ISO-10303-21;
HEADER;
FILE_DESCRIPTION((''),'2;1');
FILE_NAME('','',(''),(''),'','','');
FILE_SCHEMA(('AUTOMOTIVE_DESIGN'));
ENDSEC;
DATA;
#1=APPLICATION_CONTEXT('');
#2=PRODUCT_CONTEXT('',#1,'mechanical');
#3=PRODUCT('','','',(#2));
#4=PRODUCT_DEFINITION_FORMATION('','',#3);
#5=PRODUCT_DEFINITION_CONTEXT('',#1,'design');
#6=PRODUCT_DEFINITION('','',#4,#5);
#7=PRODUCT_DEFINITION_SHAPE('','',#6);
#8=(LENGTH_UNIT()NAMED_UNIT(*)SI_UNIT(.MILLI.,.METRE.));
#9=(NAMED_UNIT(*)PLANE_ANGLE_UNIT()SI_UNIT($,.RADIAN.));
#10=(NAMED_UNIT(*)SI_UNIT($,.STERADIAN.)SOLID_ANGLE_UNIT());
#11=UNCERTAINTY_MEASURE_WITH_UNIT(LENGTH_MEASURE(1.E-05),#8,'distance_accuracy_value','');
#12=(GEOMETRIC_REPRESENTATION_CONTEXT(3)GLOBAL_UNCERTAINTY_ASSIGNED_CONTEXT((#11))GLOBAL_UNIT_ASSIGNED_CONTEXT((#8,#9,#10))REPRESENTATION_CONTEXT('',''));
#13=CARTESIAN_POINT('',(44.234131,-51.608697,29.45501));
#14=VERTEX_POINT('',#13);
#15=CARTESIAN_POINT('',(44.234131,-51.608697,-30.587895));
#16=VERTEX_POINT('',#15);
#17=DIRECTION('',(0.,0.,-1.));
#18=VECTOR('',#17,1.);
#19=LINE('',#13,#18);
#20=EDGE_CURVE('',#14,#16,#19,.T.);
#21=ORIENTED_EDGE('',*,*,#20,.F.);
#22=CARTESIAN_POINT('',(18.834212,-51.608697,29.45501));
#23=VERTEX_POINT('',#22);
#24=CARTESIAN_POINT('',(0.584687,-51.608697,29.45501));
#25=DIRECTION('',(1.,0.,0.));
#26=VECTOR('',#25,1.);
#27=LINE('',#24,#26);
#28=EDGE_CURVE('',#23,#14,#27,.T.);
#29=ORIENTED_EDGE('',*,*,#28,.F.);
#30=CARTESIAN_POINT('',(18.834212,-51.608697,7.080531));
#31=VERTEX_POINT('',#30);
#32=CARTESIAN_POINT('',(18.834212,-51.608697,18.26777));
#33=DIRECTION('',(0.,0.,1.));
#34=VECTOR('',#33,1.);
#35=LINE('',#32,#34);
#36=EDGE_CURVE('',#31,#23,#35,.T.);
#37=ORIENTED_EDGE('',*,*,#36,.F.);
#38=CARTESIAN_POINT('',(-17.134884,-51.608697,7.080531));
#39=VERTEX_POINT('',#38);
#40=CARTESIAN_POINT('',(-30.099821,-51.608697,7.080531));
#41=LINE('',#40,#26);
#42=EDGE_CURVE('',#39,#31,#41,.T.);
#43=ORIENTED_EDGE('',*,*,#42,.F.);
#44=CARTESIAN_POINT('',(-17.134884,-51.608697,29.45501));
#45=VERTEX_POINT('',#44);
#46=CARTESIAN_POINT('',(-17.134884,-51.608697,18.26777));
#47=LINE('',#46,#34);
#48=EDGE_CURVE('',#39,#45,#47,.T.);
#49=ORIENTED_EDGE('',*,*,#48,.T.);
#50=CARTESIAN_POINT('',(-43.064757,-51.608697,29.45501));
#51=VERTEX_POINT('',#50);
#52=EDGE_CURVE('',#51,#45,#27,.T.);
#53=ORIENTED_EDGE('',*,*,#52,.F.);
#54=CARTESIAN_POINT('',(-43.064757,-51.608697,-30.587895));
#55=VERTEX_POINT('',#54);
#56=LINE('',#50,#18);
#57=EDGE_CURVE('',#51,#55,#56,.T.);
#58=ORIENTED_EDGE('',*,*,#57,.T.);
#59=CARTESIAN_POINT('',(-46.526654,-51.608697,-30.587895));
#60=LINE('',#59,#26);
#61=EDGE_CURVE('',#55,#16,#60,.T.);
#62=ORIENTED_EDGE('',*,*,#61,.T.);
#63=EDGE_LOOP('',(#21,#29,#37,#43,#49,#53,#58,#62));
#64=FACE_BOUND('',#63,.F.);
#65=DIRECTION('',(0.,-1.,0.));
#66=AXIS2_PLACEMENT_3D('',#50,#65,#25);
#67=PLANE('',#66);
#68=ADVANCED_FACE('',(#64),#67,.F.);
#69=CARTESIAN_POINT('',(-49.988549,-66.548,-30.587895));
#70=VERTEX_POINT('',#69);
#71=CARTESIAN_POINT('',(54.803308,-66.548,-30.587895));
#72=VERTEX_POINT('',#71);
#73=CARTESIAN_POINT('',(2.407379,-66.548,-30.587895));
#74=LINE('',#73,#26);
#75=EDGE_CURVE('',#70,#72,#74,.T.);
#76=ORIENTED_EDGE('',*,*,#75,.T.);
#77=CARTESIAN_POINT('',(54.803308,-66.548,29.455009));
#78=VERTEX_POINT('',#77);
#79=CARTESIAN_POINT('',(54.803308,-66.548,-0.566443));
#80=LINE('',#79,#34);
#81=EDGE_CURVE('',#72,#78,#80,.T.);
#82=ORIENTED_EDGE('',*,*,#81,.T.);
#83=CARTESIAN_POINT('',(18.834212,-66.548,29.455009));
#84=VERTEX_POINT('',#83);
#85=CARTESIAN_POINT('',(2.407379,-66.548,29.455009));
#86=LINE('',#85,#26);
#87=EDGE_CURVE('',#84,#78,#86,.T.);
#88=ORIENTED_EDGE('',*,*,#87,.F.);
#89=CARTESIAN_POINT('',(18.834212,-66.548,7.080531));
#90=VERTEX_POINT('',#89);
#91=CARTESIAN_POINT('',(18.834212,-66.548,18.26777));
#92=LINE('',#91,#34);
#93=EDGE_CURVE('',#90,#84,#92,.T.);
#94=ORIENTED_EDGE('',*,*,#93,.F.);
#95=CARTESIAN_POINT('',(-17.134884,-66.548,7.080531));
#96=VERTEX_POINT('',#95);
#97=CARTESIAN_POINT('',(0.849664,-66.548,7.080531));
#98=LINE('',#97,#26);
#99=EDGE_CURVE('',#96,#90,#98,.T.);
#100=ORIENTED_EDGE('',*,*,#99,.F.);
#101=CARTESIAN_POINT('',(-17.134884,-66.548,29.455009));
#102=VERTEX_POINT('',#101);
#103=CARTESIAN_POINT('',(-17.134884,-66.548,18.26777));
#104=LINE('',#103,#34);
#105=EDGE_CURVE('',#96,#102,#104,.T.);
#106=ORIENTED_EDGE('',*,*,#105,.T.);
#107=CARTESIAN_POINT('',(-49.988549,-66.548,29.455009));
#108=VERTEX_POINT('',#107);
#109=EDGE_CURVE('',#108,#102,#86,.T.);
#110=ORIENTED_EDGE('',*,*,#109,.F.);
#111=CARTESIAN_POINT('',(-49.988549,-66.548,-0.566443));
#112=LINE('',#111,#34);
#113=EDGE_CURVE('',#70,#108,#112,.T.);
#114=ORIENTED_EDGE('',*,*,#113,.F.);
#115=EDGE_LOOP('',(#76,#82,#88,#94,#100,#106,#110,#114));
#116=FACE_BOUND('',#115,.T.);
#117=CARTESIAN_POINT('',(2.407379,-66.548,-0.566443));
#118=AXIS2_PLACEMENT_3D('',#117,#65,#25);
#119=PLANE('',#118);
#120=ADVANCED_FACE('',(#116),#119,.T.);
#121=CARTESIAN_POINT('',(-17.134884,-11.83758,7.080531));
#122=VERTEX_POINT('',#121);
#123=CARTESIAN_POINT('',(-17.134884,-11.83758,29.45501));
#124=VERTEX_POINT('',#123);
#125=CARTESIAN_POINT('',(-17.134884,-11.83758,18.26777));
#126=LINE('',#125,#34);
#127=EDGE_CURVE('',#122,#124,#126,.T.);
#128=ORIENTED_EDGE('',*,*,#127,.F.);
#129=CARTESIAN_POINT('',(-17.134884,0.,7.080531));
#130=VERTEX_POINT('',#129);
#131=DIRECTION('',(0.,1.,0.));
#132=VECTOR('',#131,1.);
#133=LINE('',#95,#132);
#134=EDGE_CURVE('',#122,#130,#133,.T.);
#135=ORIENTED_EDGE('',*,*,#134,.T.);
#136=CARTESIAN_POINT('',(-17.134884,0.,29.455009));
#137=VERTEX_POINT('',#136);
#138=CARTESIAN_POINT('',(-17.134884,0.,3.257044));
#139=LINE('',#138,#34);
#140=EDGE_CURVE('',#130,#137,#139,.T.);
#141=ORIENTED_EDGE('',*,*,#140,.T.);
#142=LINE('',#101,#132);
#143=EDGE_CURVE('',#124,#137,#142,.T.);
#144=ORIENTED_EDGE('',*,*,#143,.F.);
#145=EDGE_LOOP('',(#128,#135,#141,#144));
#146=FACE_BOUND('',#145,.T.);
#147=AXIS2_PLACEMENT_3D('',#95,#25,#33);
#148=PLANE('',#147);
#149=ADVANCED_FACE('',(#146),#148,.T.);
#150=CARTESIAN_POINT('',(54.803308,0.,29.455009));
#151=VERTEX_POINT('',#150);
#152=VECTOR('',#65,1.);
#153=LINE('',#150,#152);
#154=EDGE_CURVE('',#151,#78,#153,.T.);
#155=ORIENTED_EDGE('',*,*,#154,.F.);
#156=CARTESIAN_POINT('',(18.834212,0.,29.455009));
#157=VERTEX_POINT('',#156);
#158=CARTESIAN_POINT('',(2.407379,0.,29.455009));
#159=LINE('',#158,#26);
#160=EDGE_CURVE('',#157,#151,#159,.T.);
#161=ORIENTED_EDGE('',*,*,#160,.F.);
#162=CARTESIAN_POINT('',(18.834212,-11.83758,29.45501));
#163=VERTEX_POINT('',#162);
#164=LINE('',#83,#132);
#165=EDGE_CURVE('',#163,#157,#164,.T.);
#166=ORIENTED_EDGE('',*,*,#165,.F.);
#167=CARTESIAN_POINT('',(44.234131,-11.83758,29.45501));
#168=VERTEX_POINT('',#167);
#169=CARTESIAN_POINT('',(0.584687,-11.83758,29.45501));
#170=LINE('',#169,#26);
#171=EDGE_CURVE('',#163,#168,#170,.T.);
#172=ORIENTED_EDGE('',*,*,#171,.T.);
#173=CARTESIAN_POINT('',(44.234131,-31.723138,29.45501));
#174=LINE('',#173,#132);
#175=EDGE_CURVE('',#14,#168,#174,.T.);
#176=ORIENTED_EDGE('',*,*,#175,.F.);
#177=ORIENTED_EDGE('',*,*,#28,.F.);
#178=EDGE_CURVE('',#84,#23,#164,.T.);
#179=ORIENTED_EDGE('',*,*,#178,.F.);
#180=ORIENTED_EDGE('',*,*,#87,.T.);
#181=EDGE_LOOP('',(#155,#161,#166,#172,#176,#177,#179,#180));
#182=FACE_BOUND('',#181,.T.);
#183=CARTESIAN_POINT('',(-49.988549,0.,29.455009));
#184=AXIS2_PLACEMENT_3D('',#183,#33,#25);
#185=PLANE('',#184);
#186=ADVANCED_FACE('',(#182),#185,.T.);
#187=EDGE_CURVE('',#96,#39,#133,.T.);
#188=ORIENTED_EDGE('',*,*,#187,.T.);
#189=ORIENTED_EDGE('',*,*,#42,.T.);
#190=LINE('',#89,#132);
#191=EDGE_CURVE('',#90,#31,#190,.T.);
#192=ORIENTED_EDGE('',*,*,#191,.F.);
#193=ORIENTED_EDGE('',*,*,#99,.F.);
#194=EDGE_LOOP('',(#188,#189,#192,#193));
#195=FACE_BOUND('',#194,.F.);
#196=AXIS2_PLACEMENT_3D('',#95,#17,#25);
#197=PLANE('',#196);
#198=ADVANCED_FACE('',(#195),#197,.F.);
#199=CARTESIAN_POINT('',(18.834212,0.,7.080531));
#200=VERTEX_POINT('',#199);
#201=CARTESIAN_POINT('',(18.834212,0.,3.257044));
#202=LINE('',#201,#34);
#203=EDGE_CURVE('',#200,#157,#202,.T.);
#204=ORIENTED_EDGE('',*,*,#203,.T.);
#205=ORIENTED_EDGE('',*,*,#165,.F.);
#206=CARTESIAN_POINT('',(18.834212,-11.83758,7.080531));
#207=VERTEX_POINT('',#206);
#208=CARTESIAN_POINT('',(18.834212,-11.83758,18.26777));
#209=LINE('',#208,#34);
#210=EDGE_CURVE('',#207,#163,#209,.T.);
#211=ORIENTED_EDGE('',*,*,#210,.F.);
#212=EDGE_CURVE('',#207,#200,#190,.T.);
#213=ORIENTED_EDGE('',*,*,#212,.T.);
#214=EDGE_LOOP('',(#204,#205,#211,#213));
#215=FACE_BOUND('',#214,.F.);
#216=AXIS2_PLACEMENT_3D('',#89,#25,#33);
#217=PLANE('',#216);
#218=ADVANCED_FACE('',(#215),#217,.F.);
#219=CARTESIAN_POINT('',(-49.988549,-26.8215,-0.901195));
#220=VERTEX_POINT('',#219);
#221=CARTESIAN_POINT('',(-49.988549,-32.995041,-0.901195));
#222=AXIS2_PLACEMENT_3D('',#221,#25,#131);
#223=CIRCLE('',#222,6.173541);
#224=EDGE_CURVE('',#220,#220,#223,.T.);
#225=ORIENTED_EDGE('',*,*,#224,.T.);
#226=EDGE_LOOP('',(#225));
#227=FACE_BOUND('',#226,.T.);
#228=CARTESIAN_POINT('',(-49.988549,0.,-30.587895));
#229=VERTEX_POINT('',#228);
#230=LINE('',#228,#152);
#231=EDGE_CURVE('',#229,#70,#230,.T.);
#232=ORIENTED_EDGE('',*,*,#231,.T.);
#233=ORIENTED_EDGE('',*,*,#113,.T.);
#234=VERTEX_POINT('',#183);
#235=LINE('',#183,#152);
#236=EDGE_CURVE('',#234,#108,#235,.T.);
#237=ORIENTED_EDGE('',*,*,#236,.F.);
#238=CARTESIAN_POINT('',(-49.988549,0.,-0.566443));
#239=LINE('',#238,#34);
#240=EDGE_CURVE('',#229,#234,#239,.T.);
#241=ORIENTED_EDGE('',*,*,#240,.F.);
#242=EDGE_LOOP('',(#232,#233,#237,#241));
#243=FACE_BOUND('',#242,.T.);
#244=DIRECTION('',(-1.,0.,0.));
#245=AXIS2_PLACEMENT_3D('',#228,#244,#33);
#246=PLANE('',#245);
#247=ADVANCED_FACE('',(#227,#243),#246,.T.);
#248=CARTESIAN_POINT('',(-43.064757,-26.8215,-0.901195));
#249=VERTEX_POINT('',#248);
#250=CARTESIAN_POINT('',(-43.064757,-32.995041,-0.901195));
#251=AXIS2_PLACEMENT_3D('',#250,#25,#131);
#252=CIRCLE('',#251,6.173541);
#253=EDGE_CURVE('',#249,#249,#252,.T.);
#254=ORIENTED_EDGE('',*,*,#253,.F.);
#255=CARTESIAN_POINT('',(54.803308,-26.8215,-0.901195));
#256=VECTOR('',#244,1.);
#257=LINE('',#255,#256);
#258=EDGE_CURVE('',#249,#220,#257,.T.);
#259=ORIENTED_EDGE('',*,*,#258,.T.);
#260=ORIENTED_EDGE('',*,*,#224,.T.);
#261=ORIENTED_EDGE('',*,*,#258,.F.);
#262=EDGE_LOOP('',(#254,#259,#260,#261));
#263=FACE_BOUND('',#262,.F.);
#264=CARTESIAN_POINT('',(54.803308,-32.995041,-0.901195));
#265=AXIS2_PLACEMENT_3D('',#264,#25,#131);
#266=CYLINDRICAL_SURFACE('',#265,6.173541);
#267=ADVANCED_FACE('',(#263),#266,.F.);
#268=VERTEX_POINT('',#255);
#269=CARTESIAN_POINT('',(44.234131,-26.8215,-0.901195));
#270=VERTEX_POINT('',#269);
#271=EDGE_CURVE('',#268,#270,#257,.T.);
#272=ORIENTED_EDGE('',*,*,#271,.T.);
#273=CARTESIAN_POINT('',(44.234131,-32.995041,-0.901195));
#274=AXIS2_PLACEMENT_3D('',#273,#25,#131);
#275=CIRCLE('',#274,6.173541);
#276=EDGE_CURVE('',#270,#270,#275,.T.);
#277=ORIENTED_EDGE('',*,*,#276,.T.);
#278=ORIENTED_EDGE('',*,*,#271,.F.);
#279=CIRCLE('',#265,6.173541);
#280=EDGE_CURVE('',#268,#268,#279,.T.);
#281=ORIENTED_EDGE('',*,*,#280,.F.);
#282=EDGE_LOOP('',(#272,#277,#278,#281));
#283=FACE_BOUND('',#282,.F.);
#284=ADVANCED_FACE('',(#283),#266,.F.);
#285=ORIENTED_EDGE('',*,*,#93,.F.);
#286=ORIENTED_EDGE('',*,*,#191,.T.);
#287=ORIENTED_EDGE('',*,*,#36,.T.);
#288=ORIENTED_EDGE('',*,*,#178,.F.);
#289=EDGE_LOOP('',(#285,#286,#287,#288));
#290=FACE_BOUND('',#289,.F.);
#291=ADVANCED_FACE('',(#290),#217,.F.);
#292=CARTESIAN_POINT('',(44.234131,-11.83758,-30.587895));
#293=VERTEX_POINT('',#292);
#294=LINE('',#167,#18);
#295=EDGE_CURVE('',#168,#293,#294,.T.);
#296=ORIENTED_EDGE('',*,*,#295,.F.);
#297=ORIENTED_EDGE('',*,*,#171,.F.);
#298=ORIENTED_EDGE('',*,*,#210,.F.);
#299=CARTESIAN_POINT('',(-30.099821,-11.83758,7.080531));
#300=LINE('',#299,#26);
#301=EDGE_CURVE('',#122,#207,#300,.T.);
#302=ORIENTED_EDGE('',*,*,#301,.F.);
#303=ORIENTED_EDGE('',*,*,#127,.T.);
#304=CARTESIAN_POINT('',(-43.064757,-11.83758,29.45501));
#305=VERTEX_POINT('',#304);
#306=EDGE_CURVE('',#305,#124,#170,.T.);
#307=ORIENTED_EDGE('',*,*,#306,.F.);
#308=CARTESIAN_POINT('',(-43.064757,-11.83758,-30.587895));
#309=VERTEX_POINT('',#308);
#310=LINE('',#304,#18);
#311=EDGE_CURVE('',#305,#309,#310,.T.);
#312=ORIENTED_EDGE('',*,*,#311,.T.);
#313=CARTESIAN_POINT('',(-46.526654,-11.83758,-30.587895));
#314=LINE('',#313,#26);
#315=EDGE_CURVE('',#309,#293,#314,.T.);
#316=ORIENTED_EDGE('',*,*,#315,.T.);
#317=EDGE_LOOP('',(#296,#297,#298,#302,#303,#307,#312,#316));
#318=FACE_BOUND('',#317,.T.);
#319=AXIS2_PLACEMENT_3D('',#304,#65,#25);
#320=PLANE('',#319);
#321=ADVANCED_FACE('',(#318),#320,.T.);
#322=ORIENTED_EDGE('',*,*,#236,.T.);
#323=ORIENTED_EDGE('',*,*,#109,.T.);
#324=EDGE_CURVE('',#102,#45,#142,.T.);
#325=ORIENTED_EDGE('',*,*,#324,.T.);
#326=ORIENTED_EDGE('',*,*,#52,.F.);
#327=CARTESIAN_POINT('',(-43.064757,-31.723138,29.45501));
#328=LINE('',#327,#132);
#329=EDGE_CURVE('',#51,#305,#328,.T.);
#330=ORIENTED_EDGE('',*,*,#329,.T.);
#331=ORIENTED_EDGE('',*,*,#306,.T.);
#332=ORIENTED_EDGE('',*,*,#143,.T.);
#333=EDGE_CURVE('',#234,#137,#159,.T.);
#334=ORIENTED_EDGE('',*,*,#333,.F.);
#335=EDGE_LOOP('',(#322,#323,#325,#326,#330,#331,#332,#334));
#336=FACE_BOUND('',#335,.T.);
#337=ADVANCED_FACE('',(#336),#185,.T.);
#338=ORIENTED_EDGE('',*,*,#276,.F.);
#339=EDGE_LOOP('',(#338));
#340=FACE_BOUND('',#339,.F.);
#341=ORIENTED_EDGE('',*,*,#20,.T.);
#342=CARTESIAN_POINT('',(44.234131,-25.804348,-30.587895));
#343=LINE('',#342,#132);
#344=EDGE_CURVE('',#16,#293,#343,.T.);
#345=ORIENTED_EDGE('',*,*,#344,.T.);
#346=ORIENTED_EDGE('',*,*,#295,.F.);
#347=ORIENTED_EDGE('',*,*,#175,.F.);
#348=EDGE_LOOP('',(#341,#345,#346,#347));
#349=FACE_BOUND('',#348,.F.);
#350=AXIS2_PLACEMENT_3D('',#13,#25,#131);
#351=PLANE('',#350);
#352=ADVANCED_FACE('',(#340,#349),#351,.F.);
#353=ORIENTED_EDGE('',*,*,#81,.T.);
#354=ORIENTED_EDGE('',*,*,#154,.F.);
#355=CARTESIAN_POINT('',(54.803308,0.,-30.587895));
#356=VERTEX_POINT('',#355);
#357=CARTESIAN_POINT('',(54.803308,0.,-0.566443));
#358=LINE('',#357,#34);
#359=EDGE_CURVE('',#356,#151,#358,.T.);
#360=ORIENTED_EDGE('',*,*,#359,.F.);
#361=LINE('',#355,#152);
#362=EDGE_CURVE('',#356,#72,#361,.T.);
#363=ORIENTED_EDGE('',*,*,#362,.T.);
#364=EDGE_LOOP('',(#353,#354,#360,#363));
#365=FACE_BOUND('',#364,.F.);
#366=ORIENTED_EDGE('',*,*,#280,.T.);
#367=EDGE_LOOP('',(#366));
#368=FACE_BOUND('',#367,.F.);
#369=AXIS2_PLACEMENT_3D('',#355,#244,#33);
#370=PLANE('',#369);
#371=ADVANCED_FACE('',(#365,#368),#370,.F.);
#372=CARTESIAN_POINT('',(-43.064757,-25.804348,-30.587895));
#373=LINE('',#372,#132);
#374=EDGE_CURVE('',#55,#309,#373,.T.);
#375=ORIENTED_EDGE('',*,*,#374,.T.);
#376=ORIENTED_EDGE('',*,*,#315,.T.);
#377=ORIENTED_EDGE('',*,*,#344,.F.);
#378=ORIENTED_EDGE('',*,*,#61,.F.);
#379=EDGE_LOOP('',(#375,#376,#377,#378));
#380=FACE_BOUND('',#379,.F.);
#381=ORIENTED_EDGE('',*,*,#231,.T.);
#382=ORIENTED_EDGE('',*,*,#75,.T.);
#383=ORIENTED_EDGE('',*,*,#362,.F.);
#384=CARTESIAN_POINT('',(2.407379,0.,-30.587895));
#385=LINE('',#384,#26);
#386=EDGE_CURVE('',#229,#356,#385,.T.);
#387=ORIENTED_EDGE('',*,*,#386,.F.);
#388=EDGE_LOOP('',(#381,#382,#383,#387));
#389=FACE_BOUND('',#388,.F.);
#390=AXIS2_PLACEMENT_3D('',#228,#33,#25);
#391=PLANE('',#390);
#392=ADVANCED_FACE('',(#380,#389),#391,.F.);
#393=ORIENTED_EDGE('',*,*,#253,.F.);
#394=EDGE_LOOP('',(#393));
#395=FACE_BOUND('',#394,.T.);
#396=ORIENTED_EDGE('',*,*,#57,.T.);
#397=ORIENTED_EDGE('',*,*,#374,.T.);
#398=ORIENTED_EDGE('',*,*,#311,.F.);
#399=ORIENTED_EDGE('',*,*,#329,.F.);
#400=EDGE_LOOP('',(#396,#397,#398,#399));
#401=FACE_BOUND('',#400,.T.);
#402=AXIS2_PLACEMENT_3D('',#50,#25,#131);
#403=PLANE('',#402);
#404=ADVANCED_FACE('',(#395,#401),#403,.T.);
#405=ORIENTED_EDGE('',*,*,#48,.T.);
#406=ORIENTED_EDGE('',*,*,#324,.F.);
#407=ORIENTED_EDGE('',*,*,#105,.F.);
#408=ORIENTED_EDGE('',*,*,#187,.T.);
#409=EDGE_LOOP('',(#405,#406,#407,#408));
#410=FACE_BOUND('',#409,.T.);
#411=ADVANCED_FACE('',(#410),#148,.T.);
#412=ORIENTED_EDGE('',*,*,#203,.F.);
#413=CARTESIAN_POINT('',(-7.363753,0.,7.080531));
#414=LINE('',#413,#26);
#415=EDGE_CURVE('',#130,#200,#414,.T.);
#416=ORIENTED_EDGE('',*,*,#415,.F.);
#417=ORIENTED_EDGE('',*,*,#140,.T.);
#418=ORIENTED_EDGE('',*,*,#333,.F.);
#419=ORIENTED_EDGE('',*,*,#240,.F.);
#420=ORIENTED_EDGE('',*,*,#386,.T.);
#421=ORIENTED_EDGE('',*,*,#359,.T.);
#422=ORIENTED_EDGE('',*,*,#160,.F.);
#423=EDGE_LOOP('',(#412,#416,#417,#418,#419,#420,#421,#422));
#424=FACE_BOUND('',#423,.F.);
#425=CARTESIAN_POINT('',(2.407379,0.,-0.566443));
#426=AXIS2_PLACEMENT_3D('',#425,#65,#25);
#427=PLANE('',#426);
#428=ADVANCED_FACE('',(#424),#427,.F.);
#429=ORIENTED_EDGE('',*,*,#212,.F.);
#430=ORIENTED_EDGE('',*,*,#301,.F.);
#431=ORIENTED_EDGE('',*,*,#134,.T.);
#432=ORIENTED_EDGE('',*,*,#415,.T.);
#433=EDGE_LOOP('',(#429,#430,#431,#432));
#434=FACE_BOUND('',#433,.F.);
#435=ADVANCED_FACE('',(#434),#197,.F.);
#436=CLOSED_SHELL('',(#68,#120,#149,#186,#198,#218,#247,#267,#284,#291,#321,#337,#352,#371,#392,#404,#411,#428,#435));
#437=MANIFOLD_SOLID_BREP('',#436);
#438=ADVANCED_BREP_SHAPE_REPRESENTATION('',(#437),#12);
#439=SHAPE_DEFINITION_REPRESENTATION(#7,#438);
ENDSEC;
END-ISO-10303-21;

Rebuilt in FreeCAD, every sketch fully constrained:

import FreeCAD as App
import Part
import Sketcher

V = App.Vector


def add_polygon(sketch, points):
    """Adds a closed chain of lines whose ends are joined by coincident constraints."""
    first, n = sketch.GeometryCount, len(points)
    for a, b in zip(points, points[1:] + points[:1]):
        sketch.addGeometry(Part.LineSegment(App.Vector(*a, 0), App.Vector(*b, 0)), False)
    for i in range(n):
        sketch.addConstraint(Sketcher.Constraint("Coincident", first + i, 2, first + (i + 1) % n, 1))

doc = App.newDocument("Part")
params = doc.addObject("Spreadsheet::Sheet", "Params")
for row, (alias, value) in enumerate([
    ("pad1_length", "2.62 in"),
], start=1):
    params.set(f"A{row}", alias)
    params.set(f"B{row}", "=" + value)
    params.setAlias(f"B{row}", alias)

body = doc.addObject("PartDesign::Body", "Body")

# Sketch on XZ plane
sketch1 = body.newObject("Sketcher::SketchObject", "Sketch")
sketch1.AttachmentSupport = (doc.getObject("XZ_Plane"), [""])
sketch1.MapMode = "FlatFace"
add_polygon(sketch1, [(-50, 29), (-50, -31), (55, -31), (55, 29)])  # lines 0-3
sketch1.addConstraint(Sketcher.Constraint("Vertical", 0))
sketch1.addConstraint(Sketcher.Constraint("Horizontal", 1))
sketch1.addConstraint(Sketcher.Constraint("Vertical", 2))
sketch1.addConstraint(Sketcher.Constraint("Horizontal", 3))
sketch1.addConstraint(Sketcher.Constraint("DistanceX", 1, 1, 1, 2, 104.791857))
sketch1.addConstraint(Sketcher.Constraint("DistanceY", 0, 2, 0, 1, 60.042905))
sketch1.addConstraint(Sketcher.Constraint("DistanceX", 0, 2, -1, 1, 49.988549))
sketch1.addConstraint(Sketcher.Constraint("DistanceY", -1, 1, 2, 2, 29.455009))
pad1 = body.newObject("PartDesign::Pad", "Pad")
pad1.Profile = sketch1
pad1.setExpression("Length", "Params.pad1_length")

# Sketch on XY plane
sketch2 = body.newObject("Sketcher::SketchObject", "Sketch001")
sketch2.AttachmentSupport = (doc.getObject("XY_Plane"), [""])
sketch2.MapMode = "FlatFace"
sketch2.AttachmentOffset = App.Placement(V(0, 0, 29.45501), App.Rotation())
add_polygon(sketch2, [(-43, -12), (-43, -52), (44, -52), (44, -12)])  # lines 0-3
sketch2.addConstraint(Sketcher.Constraint("Vertical", 0))
sketch2.addConstraint(Sketcher.Constraint("Horizontal", 1))
sketch2.addConstraint(Sketcher.Constraint("Vertical", 2))
sketch2.addConstraint(Sketcher.Constraint("Horizontal", 3))
sketch2.addConstraint(Sketcher.Constraint("DistanceX", 1, 1, 1, 2, 87.298889))
sketch2.addConstraint(Sketcher.Constraint("DistanceY", 0, 2, 0, 1, 39.771117))
sketch2.addConstraint(Sketcher.Constraint("DistanceX", -1, 1, 1, 2, 44.234131))
sketch2.addConstraint(Sketcher.Constraint("DistanceY", 2, 2, -1, 1, 11.83758))
pocket1 = body.newObject("PartDesign::Pocket", "Pocket")
pocket1.Profile = sketch2
pocket1.Type = "ThroughAll"

# Sketch on XZ plane
sketch3 = body.newObject("Sketcher::SketchObject", "Sketch002")
sketch3.AttachmentSupport = (doc.getObject("XZ_Plane"), [""])
sketch3.MapMode = "FlatFace"
sketch3.AttachmentOffset = App.Placement(V(0, 0, 2.62 * 25.4), App.Rotation())
add_polygon(sketch3, [(-17, 29), (-17, 7), (19, 7), (19, 29)])  # lines 0-3
sketch3.addConstraint(Sketcher.Constraint("Vertical", 0))
sketch3.addConstraint(Sketcher.Constraint("Horizontal", 1))
sketch3.addConstraint(Sketcher.Constraint("Vertical", 2))
sketch3.addConstraint(Sketcher.Constraint("Horizontal", 3))
sketch3.addConstraint(Sketcher.Constraint("DistanceY", 0, 2, 0, 1, 22.374479))
sketch3.addConstraint(Sketcher.Constraint("DistanceX", 1, 1, 1, 2, 35.969097))
sketch3.addConstraint(Sketcher.Constraint("DistanceY", -1, 1, 0, 2, 7.080531))
sketch3.addConstraint(Sketcher.Constraint("DistanceX", 0, 2, -1, 1, 17.134884))
pocket2 = body.newObject("PartDesign::Pocket", "Pocket001")
pocket2.Profile = sketch3
pocket2.Type = "ThroughAll"

# Sketch on YZ plane
sketch4 = body.newObject("Sketcher::SketchObject", "Sketch003")
sketch4.AttachmentSupport = (doc.getObject("YZ_Plane"), [""])
sketch4.MapMode = "FlatFace"
sketch4.AttachmentOffset = App.Placement(V(0, 0, 54.803308), App.Rotation())
sketch4.addGeometry(Part.Circle(V(-33, -1, 0), V(0, 0, 1), 6), False)
sketch4.addConstraint(Sketcher.Constraint("Diameter", 0, 12.347082))
sketch4.addConstraint(Sketcher.Constraint("DistanceX", 0, 3, -1, 1, 32.995041))
sketch4.addConstraint(Sketcher.Constraint("DistanceY", 0, 3, -1, 1, 0.901195))
pocket3 = body.newObject("PartDesign::Pocket", "Pocket002")
pocket3.Profile = sketch4
pocket3.Type = "ThroughAll"

doc.recompute()
